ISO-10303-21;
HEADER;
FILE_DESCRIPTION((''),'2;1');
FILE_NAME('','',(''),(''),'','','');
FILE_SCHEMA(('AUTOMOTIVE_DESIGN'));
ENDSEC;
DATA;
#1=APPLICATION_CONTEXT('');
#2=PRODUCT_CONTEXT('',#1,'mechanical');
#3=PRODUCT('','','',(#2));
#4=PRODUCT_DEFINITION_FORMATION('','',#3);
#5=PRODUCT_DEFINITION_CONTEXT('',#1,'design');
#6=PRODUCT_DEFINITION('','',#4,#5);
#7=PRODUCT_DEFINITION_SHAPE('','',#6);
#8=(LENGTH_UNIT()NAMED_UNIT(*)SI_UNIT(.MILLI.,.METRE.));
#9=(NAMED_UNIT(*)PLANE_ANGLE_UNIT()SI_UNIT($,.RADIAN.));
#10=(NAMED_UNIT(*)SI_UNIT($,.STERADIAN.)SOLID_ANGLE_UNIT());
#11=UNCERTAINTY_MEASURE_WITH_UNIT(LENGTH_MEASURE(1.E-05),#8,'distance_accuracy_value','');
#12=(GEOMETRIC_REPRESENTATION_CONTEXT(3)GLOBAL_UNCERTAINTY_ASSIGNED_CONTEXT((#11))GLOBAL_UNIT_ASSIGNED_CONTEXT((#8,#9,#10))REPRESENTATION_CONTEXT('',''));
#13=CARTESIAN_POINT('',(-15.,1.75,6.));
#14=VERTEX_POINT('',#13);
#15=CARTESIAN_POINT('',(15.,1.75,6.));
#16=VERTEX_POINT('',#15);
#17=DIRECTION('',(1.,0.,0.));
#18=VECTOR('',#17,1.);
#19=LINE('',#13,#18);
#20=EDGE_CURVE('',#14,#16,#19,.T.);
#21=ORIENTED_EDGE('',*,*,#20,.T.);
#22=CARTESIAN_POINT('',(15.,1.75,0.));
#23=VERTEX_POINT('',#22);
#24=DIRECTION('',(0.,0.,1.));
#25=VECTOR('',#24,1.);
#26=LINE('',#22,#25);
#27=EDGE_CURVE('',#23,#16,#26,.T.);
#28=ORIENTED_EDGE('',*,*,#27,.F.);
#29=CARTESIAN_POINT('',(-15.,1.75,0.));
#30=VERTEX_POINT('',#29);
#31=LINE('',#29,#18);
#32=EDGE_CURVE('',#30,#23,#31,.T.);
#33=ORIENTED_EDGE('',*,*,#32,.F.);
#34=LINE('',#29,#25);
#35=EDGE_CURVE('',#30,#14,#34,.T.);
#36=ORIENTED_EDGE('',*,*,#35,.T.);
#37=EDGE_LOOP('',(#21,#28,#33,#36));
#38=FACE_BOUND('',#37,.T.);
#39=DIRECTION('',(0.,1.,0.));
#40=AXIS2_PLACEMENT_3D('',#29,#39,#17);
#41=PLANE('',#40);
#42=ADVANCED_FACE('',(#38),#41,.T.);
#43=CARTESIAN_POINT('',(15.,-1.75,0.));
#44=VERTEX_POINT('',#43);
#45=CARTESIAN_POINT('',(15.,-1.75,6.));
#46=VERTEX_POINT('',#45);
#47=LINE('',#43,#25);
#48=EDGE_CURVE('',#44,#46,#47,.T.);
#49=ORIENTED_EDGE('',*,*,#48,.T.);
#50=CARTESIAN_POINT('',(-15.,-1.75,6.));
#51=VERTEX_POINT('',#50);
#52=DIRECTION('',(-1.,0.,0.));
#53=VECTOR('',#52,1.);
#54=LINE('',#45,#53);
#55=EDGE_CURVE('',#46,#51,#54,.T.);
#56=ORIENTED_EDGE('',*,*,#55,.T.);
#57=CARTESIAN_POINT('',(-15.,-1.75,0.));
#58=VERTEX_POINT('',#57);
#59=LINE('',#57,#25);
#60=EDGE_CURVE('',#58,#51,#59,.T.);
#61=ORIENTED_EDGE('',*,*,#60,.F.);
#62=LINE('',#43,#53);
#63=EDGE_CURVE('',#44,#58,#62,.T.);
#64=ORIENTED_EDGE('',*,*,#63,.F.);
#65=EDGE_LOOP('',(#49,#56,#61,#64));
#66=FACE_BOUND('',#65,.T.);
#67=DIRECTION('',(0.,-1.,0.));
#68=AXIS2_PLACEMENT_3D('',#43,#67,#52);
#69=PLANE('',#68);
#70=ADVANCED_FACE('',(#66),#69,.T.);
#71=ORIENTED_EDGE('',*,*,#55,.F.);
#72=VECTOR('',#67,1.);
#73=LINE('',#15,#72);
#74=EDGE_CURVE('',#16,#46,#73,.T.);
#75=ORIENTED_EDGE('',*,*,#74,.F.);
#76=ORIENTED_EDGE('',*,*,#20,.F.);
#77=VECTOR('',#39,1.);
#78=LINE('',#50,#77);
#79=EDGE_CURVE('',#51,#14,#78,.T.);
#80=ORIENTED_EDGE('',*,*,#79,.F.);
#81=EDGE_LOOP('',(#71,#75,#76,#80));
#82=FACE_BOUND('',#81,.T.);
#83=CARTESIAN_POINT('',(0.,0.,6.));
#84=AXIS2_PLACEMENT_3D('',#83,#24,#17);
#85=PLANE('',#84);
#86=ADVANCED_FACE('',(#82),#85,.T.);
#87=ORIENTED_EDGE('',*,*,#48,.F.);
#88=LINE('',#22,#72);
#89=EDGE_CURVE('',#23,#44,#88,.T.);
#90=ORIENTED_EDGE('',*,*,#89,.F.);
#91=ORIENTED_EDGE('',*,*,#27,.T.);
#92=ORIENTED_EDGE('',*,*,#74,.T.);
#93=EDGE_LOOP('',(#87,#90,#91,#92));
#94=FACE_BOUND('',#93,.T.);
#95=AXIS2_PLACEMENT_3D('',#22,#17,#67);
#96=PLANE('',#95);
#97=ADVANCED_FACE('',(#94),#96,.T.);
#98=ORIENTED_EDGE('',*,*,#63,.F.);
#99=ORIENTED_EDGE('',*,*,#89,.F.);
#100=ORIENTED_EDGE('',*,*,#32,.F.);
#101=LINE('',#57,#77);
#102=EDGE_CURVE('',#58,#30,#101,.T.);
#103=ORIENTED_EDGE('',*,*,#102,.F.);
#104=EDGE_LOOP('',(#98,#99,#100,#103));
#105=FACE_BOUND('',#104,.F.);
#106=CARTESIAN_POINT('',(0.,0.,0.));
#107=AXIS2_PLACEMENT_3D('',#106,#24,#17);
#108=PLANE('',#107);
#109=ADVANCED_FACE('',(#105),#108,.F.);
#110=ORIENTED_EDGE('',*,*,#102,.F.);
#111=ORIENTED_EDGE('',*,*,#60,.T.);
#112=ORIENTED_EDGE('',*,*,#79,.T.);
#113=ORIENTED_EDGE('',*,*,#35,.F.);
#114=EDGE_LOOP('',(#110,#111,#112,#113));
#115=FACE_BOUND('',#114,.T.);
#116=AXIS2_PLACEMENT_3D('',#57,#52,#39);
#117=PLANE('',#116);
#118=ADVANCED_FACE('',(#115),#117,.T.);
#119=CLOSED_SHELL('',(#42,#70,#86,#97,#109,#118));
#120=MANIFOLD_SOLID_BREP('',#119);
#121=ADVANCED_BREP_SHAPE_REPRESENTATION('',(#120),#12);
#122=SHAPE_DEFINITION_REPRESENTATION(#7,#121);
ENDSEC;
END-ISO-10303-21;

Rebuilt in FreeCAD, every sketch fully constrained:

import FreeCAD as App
import Part
import Sketcher

doc = App.newDocument("Part")
body = doc.addObject("PartDesign::Body", "Body")

# Sketch on XY plane
sketch1 = body.newObject("Sketcher::SketchObject", "Sketch")
sketch1.AttachmentSupport = (doc.getObject("XY_Plane"), [""])
sketch1.MapMode = "FlatFace"
sketch1.addGeometry(Part.LineSegment(App.Vector(15, 1.75, 0), App.Vector(-15, 1.75, 0)), False)
sketch1.addGeometry(Part.LineSegment(App.Vector(-15, 1.75, 0), App.Vector(-15, -1.75, 0)), False)
sketch1.addGeometry(Part.LineSegment(App.Vector(-15, -1.75, 0), App.Vector(15, -1.75, 0)), False)
sketch1.addGeometry(Part.LineSegment(App.Vector(15, -1.75, 0), App.Vector(15, 1.75, 0)), False)
sketch1.addConstraint(Sketcher.Constraint("Coincident", 0, 2, 1, 1))
sketch1.addConstraint(Sketcher.Constraint("Coincident", 1, 2, 2, 1))
sketch1.addConstraint(Sketcher.Constraint("Coincident", 2, 2, 3, 1))
sketch1.addConstraint(Sketcher.Constraint("Coincident", 3, 2, 0, 1))
sketch1.addConstraint(Sketcher.Constraint("Horizontal", 0))
sketch1.addConstraint(Sketcher.Constraint("Vertical", 1))
sketch1.addConstraint(Sketcher.Constraint("Horizontal", 2))
sketch1.addConstraint(Sketcher.Constraint("Vertical", 3))
sketch1.addConstraint(Sketcher.Constraint("Symmetric", 0, 2, 2, 2, -1, 1))
sketch1.addConstraint(Sketcher.Constraint("DistanceX", 0, 2, 0, 1, 30.0))
sketch1.addConstraint(Sketcher.Constraint("DistanceY", 1, 2, 1, 1, 3.5))
pad1 = body.newObject("PartDesign::Pad", "Pad")
pad1.Profile = sketch1
pad1.Length = 6

doc.recompute()
